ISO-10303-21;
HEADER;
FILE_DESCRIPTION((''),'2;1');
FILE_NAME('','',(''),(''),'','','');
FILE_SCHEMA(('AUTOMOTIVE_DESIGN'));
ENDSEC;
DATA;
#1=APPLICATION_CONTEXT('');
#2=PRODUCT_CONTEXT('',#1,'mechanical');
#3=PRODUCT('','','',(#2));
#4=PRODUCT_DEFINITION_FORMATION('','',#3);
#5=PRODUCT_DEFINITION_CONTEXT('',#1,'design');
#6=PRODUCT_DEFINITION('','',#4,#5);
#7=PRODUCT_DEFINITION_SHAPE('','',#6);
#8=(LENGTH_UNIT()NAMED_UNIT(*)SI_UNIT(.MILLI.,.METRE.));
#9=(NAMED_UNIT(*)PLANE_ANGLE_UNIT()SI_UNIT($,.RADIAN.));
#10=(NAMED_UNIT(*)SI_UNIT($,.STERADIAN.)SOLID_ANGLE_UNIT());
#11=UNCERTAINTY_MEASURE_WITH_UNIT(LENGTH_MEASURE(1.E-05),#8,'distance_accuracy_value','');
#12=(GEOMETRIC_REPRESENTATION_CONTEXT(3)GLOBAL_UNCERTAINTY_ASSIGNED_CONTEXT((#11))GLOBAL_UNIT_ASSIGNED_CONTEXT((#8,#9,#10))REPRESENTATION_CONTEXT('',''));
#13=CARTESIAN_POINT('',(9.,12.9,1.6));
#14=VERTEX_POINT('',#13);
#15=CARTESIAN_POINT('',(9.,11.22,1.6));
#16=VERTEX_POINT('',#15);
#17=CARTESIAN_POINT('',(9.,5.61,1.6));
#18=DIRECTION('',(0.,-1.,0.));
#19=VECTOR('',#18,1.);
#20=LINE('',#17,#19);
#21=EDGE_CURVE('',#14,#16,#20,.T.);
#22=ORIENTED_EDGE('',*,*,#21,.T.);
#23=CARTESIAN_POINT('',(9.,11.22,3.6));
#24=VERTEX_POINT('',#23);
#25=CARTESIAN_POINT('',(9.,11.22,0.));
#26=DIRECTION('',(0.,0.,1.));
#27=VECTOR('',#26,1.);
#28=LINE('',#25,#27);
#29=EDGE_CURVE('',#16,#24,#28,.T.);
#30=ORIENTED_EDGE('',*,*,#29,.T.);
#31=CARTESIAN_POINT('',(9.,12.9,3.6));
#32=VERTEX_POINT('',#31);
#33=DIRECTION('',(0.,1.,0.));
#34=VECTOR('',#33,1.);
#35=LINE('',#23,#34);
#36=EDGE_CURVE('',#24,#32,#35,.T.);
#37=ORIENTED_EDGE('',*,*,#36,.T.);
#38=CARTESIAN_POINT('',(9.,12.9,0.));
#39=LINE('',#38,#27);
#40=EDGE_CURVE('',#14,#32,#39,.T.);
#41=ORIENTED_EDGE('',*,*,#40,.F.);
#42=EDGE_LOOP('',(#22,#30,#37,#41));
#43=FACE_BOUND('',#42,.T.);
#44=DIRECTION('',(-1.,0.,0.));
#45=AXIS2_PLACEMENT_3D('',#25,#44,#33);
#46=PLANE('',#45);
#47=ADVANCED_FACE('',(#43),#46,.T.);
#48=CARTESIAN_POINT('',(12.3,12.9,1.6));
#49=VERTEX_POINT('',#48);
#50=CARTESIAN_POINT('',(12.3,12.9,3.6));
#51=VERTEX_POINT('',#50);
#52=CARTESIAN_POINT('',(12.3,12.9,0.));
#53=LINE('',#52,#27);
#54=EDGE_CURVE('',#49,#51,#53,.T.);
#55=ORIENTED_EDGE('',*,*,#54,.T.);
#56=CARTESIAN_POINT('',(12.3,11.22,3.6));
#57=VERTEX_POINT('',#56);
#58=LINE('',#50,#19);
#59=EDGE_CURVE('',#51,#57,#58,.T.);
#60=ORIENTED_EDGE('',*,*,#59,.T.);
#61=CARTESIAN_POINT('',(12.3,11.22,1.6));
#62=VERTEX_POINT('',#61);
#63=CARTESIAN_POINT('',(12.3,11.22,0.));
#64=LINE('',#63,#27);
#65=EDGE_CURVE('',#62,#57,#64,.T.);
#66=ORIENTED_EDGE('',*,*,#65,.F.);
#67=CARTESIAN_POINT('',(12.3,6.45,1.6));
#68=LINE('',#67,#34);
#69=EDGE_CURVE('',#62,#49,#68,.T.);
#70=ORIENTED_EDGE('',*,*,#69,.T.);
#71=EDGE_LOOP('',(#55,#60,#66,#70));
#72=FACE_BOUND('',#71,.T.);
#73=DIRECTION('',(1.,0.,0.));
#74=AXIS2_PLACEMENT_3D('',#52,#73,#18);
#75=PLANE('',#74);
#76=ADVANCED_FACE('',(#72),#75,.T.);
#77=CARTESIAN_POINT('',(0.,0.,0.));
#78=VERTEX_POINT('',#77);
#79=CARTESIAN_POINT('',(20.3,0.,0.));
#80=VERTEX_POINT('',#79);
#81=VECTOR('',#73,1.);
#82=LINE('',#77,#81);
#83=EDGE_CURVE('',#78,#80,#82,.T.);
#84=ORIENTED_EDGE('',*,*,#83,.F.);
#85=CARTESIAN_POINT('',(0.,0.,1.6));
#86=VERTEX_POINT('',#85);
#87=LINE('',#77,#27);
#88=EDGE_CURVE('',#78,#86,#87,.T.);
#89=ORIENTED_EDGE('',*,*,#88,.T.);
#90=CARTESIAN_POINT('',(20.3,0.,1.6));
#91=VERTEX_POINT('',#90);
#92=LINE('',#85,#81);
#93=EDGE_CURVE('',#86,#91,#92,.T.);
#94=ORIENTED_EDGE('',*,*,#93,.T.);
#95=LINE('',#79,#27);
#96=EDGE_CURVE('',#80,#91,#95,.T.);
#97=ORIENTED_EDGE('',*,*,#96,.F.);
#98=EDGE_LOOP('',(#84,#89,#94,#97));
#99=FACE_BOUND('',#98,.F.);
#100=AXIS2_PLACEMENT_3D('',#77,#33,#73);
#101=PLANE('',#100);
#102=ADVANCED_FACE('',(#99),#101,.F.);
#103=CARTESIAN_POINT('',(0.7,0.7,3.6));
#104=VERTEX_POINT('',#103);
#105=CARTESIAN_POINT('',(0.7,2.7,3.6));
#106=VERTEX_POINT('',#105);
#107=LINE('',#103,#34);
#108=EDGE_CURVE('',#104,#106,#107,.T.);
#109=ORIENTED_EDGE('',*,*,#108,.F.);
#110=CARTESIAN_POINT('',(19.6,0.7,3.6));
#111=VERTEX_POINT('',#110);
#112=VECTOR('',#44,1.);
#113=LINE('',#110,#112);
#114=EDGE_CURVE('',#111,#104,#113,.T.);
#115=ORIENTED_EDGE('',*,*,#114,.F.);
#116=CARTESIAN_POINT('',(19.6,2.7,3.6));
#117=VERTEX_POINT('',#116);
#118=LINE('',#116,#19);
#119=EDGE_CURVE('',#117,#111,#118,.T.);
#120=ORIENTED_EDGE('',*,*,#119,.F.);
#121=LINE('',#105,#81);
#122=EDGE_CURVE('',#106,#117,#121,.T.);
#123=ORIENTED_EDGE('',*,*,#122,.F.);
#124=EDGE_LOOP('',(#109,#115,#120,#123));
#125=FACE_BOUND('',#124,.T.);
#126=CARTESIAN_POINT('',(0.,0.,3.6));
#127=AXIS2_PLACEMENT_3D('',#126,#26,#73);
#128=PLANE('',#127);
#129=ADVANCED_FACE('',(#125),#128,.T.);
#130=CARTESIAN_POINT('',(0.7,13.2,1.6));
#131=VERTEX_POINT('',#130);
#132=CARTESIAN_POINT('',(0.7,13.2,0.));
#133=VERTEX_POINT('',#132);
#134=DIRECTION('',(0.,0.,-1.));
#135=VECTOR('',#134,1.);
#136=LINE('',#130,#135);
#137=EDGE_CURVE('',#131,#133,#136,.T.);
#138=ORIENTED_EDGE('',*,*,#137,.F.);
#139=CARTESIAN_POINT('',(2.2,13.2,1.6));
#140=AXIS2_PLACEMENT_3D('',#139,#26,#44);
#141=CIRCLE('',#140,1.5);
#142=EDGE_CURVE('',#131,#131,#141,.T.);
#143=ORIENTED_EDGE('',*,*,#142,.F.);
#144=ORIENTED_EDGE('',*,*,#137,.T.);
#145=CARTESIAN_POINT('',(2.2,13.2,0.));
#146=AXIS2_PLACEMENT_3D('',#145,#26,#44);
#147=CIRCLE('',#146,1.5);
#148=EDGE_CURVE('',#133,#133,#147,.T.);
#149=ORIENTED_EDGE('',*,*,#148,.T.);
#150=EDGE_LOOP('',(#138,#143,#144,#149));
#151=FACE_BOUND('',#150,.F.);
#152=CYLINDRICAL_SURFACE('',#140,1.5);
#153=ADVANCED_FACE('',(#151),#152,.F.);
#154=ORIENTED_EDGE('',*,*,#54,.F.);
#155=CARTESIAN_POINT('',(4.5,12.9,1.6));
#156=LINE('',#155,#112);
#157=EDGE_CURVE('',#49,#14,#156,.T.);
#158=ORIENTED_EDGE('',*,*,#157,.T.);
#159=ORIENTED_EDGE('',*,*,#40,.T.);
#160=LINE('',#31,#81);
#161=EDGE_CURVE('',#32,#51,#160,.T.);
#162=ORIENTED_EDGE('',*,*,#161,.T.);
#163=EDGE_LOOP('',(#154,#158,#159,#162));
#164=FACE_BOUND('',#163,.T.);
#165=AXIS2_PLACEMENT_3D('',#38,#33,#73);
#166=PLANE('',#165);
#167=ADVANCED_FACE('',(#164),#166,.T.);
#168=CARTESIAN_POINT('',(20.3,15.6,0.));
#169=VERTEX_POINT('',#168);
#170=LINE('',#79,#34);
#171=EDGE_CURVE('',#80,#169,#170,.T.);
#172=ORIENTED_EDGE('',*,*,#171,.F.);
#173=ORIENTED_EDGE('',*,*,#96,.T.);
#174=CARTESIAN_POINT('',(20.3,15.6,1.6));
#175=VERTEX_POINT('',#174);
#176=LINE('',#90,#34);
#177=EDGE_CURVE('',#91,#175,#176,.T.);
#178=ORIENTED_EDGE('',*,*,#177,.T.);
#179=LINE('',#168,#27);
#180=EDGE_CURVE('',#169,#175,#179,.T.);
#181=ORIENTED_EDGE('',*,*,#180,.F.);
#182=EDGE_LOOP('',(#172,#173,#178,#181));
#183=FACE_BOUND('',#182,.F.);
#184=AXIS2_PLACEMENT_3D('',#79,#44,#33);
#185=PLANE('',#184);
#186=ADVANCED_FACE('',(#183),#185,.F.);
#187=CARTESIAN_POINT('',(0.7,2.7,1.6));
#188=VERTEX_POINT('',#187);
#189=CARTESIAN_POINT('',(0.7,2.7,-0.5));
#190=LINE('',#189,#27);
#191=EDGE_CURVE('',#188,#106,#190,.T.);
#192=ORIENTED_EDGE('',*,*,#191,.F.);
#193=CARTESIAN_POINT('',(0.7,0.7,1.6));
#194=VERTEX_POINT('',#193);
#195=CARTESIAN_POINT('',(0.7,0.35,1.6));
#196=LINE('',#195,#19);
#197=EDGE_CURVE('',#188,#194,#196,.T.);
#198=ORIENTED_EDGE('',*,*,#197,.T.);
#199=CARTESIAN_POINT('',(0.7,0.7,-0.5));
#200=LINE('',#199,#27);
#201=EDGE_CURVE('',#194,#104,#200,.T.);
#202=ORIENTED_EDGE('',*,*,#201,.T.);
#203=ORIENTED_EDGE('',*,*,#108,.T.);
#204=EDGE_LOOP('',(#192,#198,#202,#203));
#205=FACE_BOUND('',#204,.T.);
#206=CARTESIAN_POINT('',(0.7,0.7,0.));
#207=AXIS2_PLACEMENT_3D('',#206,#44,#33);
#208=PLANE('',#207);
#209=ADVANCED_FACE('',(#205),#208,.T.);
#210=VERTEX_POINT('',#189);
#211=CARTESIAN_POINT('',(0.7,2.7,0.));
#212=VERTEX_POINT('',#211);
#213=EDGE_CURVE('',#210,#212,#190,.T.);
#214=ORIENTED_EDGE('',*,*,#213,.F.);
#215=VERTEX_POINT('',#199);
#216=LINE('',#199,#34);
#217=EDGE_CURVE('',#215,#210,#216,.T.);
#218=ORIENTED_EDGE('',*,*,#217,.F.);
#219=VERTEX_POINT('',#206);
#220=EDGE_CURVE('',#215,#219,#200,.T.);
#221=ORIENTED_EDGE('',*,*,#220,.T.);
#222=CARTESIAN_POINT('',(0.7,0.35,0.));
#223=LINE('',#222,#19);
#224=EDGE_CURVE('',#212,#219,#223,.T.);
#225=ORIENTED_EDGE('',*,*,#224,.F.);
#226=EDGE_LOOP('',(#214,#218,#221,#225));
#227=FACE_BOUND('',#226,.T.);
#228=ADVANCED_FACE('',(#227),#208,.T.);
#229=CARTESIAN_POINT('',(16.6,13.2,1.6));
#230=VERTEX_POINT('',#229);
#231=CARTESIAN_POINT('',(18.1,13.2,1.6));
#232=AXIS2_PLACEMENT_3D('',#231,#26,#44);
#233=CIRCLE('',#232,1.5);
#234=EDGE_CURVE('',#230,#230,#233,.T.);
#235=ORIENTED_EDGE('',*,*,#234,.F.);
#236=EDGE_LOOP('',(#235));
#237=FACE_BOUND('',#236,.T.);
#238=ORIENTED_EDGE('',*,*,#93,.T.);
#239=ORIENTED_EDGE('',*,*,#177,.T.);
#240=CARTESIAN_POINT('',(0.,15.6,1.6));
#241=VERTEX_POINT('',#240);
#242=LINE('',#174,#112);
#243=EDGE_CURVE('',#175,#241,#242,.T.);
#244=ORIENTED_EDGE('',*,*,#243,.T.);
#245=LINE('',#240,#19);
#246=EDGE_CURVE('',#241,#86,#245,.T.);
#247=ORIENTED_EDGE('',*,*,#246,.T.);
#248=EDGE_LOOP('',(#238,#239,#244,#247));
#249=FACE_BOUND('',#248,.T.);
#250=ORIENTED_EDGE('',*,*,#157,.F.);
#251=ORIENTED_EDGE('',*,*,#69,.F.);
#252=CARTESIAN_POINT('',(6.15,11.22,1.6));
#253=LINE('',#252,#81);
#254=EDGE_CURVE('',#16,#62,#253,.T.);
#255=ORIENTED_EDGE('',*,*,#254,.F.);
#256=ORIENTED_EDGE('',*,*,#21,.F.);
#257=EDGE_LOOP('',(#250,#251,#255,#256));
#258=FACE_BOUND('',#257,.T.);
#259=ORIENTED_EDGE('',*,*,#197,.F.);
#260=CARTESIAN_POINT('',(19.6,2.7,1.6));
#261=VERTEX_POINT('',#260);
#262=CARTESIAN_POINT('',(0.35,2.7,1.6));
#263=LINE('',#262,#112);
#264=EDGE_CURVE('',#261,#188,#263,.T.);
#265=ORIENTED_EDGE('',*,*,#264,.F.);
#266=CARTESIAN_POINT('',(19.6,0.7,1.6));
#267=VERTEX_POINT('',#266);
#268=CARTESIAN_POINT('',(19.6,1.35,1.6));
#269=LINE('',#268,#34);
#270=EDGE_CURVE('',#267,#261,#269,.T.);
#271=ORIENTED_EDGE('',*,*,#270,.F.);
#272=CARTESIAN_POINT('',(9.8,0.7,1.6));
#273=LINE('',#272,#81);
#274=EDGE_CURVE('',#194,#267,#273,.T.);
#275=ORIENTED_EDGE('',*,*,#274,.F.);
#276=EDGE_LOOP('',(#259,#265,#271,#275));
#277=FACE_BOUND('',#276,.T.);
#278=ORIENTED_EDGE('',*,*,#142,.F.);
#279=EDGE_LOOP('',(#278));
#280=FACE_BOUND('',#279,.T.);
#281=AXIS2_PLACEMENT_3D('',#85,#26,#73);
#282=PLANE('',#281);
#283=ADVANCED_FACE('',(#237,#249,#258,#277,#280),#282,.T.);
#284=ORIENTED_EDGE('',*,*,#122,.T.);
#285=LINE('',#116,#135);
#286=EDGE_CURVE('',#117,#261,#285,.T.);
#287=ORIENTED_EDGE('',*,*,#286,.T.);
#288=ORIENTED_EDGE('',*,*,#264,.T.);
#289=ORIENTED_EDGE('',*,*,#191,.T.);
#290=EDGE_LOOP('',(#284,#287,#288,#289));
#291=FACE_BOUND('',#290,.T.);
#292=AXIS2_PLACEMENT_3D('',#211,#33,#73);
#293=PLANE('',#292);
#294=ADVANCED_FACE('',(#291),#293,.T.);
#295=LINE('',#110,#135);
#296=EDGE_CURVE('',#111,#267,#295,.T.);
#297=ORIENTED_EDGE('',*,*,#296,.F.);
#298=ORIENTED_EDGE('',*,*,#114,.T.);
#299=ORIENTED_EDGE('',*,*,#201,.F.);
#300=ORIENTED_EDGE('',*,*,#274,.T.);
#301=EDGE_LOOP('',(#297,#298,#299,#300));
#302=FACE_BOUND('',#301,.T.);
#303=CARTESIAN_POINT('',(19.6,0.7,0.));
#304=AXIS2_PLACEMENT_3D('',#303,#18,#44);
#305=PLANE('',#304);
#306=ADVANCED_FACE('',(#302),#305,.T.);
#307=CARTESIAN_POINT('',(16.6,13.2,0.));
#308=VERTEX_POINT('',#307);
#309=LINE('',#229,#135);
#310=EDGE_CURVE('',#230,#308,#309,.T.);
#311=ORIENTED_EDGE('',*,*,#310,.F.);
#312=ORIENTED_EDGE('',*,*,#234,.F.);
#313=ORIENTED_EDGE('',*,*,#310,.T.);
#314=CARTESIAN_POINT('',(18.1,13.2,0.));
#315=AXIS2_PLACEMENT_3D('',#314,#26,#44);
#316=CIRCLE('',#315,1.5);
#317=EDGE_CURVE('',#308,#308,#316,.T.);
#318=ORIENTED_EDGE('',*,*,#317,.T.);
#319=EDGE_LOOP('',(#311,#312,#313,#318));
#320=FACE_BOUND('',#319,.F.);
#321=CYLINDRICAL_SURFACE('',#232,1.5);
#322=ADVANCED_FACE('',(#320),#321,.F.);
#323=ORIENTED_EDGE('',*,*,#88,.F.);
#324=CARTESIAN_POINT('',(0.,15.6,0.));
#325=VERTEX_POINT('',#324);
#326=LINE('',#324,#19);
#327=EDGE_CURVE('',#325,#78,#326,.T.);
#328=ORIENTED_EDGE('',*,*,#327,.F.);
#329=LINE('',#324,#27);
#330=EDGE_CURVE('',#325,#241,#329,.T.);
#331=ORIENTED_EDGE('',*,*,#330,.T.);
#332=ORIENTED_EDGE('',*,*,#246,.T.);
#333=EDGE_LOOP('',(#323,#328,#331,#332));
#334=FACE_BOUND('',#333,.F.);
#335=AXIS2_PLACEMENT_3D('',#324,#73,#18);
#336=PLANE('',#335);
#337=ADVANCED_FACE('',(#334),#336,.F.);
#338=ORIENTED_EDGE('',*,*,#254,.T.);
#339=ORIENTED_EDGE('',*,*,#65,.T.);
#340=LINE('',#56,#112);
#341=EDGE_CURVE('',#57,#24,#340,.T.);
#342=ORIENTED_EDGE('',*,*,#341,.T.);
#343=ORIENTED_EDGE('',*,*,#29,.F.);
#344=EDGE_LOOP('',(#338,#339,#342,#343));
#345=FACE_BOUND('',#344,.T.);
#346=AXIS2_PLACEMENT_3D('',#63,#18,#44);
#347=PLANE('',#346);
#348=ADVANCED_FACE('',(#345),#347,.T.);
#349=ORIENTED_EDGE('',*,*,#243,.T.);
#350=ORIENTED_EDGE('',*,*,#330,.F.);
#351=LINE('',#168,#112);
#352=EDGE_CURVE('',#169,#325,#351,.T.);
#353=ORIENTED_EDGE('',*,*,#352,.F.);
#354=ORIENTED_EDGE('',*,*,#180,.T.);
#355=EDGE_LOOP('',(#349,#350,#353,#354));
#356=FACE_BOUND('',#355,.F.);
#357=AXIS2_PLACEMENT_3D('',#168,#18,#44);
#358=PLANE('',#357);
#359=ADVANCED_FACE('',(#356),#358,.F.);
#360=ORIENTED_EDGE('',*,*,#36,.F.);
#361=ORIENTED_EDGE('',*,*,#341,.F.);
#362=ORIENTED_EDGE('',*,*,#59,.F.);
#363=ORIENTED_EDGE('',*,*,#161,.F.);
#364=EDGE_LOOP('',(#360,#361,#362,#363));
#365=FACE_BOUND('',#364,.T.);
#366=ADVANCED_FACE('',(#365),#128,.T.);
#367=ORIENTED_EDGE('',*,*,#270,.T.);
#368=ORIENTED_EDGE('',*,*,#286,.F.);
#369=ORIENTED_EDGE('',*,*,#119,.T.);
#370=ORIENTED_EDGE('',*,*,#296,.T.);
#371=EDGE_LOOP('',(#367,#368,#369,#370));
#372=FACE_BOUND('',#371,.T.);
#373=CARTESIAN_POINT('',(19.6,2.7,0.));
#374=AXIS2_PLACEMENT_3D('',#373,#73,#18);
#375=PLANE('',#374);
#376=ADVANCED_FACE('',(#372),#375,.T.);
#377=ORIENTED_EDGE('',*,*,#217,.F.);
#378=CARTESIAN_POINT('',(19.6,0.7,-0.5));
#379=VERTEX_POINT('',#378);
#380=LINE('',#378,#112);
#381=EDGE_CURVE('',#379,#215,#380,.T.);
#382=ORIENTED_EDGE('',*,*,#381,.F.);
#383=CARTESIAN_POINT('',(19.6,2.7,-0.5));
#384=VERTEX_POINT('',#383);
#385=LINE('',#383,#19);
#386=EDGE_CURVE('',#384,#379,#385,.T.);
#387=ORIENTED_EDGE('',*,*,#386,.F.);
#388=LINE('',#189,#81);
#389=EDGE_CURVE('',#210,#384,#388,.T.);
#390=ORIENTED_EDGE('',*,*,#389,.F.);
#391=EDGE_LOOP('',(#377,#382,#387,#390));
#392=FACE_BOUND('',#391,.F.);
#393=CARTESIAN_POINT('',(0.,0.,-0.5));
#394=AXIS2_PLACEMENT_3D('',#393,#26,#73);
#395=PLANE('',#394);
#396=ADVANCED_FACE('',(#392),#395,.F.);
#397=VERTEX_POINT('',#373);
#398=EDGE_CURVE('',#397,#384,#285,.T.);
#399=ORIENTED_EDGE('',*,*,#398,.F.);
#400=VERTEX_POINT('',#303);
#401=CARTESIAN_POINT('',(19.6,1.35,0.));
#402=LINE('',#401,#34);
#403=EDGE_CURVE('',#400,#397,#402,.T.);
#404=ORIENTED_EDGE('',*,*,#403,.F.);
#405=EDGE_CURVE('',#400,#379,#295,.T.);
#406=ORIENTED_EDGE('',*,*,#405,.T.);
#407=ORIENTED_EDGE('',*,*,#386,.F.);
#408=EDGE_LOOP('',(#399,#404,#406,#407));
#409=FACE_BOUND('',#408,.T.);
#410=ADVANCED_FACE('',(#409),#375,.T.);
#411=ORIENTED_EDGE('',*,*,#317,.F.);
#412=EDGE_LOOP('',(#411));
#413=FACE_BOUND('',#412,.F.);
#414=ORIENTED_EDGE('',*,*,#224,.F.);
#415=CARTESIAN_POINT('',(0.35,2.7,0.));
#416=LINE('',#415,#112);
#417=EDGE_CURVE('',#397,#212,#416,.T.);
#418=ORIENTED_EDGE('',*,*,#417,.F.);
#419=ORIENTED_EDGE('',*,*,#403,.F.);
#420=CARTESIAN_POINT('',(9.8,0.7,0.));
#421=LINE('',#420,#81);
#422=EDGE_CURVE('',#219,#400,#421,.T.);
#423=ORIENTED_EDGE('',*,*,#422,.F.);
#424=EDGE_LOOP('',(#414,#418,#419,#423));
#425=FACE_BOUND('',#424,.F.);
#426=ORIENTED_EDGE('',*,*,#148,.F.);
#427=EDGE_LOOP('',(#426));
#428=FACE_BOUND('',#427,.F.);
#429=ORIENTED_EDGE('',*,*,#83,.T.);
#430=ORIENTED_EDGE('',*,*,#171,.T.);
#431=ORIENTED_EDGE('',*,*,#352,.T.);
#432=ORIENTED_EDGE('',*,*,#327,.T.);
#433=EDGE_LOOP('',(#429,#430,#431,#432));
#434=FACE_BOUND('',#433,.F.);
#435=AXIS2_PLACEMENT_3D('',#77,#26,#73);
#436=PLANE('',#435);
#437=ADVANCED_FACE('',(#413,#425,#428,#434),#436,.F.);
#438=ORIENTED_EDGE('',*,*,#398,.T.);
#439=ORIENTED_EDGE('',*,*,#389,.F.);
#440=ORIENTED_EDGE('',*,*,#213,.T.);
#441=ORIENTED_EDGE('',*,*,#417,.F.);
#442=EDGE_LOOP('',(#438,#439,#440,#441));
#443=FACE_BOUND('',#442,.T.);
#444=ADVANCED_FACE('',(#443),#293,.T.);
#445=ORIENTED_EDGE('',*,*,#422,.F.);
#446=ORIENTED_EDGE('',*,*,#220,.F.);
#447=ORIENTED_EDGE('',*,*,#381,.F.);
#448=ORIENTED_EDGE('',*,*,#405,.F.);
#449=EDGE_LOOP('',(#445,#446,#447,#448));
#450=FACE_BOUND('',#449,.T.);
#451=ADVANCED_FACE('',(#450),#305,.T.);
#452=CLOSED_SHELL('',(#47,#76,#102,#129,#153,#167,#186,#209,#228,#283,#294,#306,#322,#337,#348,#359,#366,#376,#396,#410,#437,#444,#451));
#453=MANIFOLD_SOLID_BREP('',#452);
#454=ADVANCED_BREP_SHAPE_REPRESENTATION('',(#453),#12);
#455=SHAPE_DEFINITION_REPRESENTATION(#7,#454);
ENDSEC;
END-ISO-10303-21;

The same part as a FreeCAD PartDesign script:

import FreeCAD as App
import Part
import Sketcher

V = App.Vector
Q = App.Units.Quantity


def add_polygon(sketch, points):
    """Adds a closed chain of lines whose ends are joined by coincident constraints."""
    first, n = sketch.GeometryCount, len(points)
    for a, b in zip(points, points[1:] + points[:1]):
        sketch.addGeometry(Part.LineSegment(App.Vector(*a, 0), App.Vector(*b, 0)), False)
    for i in range(n):
        sketch.addConstraint(Sketcher.Constraint("Coincident", first + i, 2, first + (i + 1) % n, 1))

doc = App.newDocument("Part")
body = doc.addObject("PartDesign::Body", "Body")

sketch1 = body.newObject("Sketcher::SketchObject", "Sketch")
sketch1.AttachmentSupport = (doc.getObject("XY_Plane"), [""])
sketch1.MapMode = "FlatFace"
add_polygon(sketch1, [(0, 16), (0, 0), (20, 0), (20, 16)])
sketch1.addConstraint([
    Sketcher.Constraint("Vertical", 0),
    Sketcher.Constraint("Horizontal", 1),
    Sketcher.Constraint("Vertical", 2),
    Sketcher.Constraint("Horizontal", 3),
    Sketcher.Constraint("Coincident", 0, 2, -1, 1),
    Sketcher.Constraint("DistanceX", 1, 1, 1, 2, Q("20.3 mm")),
    Sketcher.Constraint("DistanceY", 0, 2, 0, 1, Q("15.6 mm")),
])
pad1 = body.newObject("PartDesign::Pad", "Pad")
pad1.Profile = sketch1
pad1.Length = 1.6

sketch2 = body.newObject("Sketcher::SketchObject", "Sketch001")
sketch2.AttachmentSupport = (doc.getObject("XY_Plane"), [""])
sketch2.MapMode = "FlatFace"
add_polygon(sketch2, [(12.3, 12.9), (9, 12.9), (9, 11.2), (12.3, 11.2)])
sketch2.addConstraint([
    Sketcher.Constraint("Horizontal", 0),
    Sketcher.Constraint("Vertical", 1),
    Sketcher.Constraint("Horizontal", 2),
    Sketcher.Constraint("Vertical", 3),
    Sketcher.Constraint("DistanceX", 0, 2, 0, 1, Q("3.3 mm")),
    Sketcher.Constraint("DistanceY", 1, 2, 1, 1, Q("1.68 mm")),
    Sketcher.Constraint("DistanceX", -1, 1, 0, 2, Q("9 mm")),
    Sketcher.Constraint("DistanceY", -1, 1, 0, 2, Q("12.9 mm")),
])
pad2 = body.newObject("PartDesign::Pad", "Pad001")
pad2.Profile = sketch2
pad2.Length = 3.6

sketch3 = body.newObject("Sketcher::SketchObject", "Sketch002")
sketch3.AttachmentSupport = (doc.getObject("XY_Plane"), [""])
sketch3.MapMode = "FlatFace"
add_polygon(sketch3, [(19.6, 2.7), (0.7, 2.7), (0.7, 0.7), (19.6, 0.7)])
sketch3.addConstraint([
    Sketcher.Constraint("Horizontal", 0),
    Sketcher.Constraint("Vertical", 1),
    Sketcher.Constraint("Horizontal", 2),
    Sketcher.Constraint("Vertical", 3),
    Sketcher.Constraint("DistanceY", 1, 2, 1, 1, Q("2 mm")),
    Sketcher.Constraint("DistanceX", -1, 1, 0, 2, Q("0.7 mm")),
    Sketcher.Constraint("DistanceY", -1, 1, 0, 2, Q("2.7 mm")),
    Sketcher.Constraint("DistanceX", 0, 2, 0, 1, Q("18.9 mm")),
])
pad3 = body.newObject("PartDesign::Pad", "Pad002")
pad3.Profile = sketch3
pad3.Type = "TwoLengths"
pad3.Length = 3.6
pad3.Length2 = 0.5

sketch4 = body.newObject("Sketcher::SketchObject", "Sketch003")
sketch4.AttachmentSupport = (doc.getObject("XY_Plane"), [""])
sketch4.MapMode = "FlatFace"
sketch4.AttachmentOffset = App.Placement(V(0, 0, 1.6), App.Rotation())
sketch4.addGeometry([
    Part.Circle(V(2.2, 13.2, 0), V(0, 0, 1), 1.5),
    Part.Circle(V(18.1, 13.2, 0), V(0, 0, 1), 1.5),
], False)
sketch4.addConstraint([
    Sketcher.Constraint("Equal", 0, 1),
    Sketcher.Constraint("Horizontal", 0, 3, 1, 3),
    Sketcher.Constraint("Diameter", 0, Q("3 mm")),
    Sketcher.Constraint("DistanceX", -1, 1, 0, 3, Q("2.2 mm")),
    Sketcher.Constraint("DistanceY", -1, 1, 0, 3, Q("13.2 mm")),
    Sketcher.Constraint("DistanceX", -1, 1, 1, 3, Q("18.1 mm")),
])
pocket1 = body.newObject("PartDesign::Pocket", "Pocket")
pocket1.Profile = sketch4
pocket1.Type = "ThroughAll"

doc.recompute()
